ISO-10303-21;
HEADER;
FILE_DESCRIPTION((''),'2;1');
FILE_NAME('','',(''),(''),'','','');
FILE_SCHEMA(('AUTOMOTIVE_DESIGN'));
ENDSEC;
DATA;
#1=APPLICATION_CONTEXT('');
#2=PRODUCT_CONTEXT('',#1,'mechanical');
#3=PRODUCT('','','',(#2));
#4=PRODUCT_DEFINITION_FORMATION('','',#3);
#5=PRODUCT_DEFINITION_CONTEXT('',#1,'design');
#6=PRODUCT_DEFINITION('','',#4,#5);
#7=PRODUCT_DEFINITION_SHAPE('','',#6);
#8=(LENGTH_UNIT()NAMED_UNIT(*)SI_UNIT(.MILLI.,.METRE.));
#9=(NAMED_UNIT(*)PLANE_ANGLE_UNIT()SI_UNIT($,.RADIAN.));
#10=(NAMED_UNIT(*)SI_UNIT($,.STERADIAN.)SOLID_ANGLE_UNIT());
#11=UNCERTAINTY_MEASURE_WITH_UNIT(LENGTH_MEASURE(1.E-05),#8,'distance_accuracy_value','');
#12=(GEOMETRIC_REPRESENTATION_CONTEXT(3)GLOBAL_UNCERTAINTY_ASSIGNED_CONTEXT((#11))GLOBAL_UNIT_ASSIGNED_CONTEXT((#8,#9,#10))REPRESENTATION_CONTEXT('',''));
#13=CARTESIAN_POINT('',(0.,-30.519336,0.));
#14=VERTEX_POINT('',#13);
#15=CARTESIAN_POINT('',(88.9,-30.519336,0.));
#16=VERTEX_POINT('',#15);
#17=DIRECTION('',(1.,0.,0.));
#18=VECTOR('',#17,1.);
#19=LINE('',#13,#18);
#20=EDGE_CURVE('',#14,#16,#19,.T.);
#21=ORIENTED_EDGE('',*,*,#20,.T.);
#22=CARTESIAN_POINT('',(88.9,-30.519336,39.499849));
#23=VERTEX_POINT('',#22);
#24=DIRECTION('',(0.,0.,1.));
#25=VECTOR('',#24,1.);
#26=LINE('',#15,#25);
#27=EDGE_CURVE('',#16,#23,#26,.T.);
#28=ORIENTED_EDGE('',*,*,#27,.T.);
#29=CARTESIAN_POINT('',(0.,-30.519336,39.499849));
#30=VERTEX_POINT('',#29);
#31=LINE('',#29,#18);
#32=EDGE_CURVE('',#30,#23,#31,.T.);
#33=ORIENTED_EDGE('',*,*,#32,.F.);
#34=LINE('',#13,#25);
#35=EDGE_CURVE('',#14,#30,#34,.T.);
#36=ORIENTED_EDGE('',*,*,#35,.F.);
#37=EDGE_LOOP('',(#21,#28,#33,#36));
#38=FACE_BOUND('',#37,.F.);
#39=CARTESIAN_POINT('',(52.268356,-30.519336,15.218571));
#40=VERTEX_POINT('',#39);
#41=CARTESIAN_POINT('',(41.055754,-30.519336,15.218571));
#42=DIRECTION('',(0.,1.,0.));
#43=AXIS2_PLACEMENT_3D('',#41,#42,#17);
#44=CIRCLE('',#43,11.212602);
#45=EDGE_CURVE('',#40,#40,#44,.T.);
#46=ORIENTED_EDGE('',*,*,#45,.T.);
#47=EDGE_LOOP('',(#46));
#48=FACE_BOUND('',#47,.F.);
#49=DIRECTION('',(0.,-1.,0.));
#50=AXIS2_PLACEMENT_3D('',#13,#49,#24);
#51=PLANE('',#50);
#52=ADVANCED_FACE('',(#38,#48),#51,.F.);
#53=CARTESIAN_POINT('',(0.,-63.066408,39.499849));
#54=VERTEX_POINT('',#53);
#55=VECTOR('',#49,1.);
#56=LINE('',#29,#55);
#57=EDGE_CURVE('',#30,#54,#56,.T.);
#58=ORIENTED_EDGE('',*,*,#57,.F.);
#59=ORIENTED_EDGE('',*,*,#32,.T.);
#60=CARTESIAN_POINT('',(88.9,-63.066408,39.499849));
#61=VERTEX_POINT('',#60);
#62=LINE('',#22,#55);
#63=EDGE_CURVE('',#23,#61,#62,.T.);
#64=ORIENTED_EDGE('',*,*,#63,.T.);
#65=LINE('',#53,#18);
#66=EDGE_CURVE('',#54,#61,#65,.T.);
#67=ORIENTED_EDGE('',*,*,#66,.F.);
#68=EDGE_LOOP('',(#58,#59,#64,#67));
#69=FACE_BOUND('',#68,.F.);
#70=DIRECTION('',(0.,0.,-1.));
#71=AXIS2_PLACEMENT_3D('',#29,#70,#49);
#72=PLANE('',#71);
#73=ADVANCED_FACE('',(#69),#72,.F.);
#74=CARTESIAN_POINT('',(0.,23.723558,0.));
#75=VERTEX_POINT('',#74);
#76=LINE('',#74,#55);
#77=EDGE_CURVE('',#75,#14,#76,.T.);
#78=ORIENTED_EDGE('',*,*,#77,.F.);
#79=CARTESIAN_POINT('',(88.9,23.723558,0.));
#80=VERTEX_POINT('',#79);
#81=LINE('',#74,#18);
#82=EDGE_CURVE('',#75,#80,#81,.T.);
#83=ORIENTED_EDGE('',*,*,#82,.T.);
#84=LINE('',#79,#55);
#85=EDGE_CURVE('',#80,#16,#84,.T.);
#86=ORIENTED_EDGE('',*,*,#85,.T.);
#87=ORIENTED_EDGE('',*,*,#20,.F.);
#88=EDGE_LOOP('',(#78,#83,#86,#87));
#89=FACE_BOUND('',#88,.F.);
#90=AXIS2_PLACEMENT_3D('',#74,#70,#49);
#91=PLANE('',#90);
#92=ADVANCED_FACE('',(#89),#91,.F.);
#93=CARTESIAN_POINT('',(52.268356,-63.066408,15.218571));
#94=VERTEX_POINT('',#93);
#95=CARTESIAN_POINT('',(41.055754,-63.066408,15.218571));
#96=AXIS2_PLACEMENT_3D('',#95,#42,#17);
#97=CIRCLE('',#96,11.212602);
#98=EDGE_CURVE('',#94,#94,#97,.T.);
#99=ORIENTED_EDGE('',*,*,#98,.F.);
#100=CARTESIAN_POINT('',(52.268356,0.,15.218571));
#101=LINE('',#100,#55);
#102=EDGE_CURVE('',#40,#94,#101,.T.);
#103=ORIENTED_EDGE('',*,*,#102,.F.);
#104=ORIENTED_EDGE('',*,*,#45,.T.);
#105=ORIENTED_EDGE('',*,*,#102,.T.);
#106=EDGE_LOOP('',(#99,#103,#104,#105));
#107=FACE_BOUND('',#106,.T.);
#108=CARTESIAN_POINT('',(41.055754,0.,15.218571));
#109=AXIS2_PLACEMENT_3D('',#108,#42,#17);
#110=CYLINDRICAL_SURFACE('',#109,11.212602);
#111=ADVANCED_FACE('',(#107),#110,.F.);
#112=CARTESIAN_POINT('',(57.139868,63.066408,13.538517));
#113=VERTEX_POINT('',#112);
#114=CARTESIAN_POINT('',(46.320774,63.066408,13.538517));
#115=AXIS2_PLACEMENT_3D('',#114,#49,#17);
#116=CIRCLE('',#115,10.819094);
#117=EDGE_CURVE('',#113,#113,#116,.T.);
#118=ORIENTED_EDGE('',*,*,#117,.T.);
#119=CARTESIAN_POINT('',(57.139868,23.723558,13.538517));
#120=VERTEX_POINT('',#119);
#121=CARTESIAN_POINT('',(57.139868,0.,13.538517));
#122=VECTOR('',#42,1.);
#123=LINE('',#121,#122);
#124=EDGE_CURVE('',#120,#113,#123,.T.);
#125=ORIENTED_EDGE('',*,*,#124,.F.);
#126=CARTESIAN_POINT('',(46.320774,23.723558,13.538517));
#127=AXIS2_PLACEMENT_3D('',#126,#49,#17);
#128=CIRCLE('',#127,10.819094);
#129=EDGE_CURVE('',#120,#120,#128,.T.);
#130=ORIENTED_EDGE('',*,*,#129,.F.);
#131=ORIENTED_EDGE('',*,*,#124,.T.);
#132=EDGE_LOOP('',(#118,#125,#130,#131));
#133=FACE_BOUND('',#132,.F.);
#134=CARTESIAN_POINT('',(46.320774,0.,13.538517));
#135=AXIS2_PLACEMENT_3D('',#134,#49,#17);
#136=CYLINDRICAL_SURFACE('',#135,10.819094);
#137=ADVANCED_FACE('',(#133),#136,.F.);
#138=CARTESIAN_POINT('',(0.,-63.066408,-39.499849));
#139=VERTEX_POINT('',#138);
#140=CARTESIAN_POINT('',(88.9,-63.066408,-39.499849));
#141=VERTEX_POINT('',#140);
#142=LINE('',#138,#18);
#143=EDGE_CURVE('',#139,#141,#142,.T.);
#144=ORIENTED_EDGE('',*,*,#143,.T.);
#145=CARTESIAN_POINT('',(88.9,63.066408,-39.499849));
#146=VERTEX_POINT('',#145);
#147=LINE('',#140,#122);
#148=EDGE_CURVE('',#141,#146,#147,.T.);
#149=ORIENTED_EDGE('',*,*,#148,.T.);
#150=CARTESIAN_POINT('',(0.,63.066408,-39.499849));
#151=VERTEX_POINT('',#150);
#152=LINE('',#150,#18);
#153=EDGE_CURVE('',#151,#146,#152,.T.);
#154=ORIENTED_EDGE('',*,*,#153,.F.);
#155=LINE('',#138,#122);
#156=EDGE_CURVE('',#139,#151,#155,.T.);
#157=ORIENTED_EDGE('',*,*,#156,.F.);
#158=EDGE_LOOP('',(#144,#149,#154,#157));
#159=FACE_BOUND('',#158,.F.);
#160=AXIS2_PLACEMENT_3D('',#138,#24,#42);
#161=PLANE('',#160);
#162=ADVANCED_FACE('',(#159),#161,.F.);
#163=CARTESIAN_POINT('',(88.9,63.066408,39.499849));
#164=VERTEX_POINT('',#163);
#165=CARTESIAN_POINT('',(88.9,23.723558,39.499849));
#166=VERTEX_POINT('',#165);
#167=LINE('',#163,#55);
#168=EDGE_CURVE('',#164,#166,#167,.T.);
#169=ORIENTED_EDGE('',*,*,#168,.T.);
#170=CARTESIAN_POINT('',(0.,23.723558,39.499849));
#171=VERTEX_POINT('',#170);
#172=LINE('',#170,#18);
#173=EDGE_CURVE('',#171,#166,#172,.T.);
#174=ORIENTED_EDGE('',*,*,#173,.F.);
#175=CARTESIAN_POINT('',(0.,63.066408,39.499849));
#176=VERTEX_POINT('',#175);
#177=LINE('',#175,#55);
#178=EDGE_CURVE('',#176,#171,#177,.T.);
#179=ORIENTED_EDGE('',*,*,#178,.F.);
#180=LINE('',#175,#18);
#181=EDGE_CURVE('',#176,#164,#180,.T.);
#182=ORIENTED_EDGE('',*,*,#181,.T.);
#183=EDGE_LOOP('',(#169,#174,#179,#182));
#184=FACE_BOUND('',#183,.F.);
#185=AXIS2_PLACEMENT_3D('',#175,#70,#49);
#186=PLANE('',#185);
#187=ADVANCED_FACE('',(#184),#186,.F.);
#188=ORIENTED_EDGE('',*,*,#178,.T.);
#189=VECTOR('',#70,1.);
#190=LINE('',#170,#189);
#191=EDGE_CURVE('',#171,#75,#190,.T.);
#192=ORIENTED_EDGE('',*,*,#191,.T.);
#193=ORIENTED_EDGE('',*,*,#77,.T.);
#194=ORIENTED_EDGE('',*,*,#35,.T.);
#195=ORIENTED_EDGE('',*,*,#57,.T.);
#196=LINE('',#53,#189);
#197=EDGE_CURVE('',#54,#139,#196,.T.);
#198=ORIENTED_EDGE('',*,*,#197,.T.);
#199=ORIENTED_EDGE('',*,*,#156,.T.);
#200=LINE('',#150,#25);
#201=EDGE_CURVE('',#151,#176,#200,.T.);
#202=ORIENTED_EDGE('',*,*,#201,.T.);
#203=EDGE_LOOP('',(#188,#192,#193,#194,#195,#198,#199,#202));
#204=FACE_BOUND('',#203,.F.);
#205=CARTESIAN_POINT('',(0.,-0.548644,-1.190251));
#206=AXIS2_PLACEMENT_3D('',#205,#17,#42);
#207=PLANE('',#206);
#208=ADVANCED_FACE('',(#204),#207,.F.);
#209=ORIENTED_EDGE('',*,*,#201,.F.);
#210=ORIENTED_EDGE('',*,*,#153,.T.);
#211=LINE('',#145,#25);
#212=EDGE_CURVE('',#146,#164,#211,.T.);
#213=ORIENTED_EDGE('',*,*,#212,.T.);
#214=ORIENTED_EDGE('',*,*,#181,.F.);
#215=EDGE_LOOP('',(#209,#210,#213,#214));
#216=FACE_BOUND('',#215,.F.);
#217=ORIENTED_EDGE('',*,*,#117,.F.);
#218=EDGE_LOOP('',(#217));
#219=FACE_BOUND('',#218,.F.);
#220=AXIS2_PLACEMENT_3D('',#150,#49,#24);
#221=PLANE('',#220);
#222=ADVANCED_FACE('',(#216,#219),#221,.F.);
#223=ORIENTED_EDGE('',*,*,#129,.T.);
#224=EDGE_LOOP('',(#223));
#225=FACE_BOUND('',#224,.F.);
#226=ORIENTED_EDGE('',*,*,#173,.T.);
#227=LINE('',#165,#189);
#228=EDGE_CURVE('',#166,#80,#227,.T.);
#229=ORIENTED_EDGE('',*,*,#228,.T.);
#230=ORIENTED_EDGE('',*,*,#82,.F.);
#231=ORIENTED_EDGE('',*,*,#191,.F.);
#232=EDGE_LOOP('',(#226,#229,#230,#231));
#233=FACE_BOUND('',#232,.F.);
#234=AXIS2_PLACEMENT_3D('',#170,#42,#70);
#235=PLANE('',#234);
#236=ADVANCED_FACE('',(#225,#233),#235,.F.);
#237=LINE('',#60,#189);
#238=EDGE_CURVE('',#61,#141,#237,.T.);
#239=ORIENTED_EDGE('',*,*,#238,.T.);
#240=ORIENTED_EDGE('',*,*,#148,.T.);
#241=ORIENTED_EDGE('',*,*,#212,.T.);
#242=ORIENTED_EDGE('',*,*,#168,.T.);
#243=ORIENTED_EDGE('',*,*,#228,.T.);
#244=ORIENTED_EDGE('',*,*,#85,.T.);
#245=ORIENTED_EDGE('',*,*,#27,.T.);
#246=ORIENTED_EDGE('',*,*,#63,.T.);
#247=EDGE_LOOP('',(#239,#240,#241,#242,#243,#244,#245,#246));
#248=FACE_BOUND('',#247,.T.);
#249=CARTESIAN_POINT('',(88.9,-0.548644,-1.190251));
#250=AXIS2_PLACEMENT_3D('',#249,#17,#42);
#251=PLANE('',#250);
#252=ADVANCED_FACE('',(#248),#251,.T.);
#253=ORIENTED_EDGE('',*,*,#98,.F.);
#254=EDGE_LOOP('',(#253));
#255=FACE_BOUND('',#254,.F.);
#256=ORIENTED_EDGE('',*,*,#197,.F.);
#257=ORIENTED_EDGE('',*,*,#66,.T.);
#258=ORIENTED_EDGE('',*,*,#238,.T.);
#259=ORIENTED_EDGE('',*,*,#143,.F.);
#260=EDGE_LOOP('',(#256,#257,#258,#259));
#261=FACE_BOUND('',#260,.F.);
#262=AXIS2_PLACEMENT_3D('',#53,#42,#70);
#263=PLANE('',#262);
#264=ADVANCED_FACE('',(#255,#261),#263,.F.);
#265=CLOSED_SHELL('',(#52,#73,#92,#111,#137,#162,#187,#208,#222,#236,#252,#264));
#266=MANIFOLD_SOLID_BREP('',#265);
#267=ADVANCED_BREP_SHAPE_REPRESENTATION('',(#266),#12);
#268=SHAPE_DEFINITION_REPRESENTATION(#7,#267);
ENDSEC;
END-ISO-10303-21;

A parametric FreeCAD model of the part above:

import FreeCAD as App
import Part
import Sketcher
Q = App.Units.Quantity

doc = App.newDocument("Part")
body = doc.addObject("PartDesign::Body", "Body")

# Sketch on YZ plane
sketch1 = body.newObject("Sketcher::SketchObject", "Sketch")
sketch1.AttachmentSupport = (doc.getObject("YZ_Plane"), [""])
sketch1.MapMode = "FlatFace"
sketch1.addGeometry(Part.LineSegment(App.Vector(63.066408, -39.499849, 0), App.Vector(63.066408, 39.499849, 0)), False)
sketch1.addGeometry(Part.LineSegment(App.Vector(63.066408, 39.499849, 0), App.Vector(23.723558, 39.499849, 0)), False)
sketch1.addGeometry(Part.LineSegment(App.Vector(23.723558, 39.499849, 0), App.Vector(23.723558, 0, 0)), False)
sketch1.addGeometry(Part.LineSegment(App.Vector(23.723558, 0, 0), App.Vector(-30.519336, 0, 0)), False)
sketch1.addGeometry(Part.LineSegment(App.Vector(-30.519336, 0, 0), App.Vector(-30.519336, 39.499849, 0)), False)
sketch1.addGeometry(Part.LineSegment(App.Vector(-30.519336, 39.499849, 0), App.Vector(-63.066408, 39.499849, 0)), False)
sketch1.addGeometry(Part.LineSegment(App.Vector(-63.066408, 39.499849, 0), App.Vector(-63.066408, -39.499849, 0)), False)
sketch1.addGeometry(Part.LineSegment(App.Vector(-63.066408, -39.499849, 0), App.Vector(63.066408, -39.499849, 0)), False)
sketch1.addConstraint(Sketcher.Constraint("Coincident", 0, 2, 1, 1))
sketch1.addConstraint(Sketcher.Constraint("Coincident", 1, 2, 2, 1))
sketch1.addConstraint(Sketcher.Constraint("Coincident", 2, 2, 3, 1))
sketch1.addConstraint(Sketcher.Constraint("Coincident", 3, 2, 4, 1))
sketch1.addConstraint(Sketcher.Constraint("Coincident", 4, 2, 5, 1))
sketch1.addConstraint(Sketcher.Constraint("Coincident", 5, 2, 6, 1))
sketch1.addConstraint(Sketcher.Constraint("Coincident", 6, 2, 7, 1))
sketch1.addConstraint(Sketcher.Constraint("Coincident", 7, 2, 0, 1))
sketch1.addConstraint(Sketcher.Constraint("Vertical", 0))
sketch1.addConstraint(Sketcher.Constraint("Horizontal", 1))
sketch1.addConstraint(Sketcher.Constraint("Vertical", 2))
sketch1.addConstraint(Sketcher.Constraint("Horizontal", 3))
sketch1.addConstraint(Sketcher.Constraint("Vertical", 4))
sketch1.addConstraint(Sketcher.Constraint("Horizontal", 5))
sketch1.addConstraint(Sketcher.Constraint("Vertical", 6))
sketch1.addConstraint(Sketcher.Constraint("Horizontal", 7))
sketch1.addConstraint(Sketcher.Constraint("Symmetric", 0, 2, 6, 2, -1, 1))
sketch1.addConstraint(Sketcher.Constraint("PointOnObject", 2, 2, -1))
sketch1.addConstraint(Sketcher.Constraint("Horizontal", 1, 2, 4, 2))
sketch1.addConstraint(Sketcher.Constraint("DistanceX", 1, 2, 1, 1, 39.34285))
sketch1.addConstraint(Sketcher.Constraint("DistanceY", 2, 2, 2, 1, 39.499849))
sketch1.addConstraint(Sketcher.Constraint("DistanceX", 3, 2, 3, 1, 54.242894))
sketch1.addConstraint(Sketcher.Constraint("DistanceX", 5, 2, 5, 1, 32.547072))
pad1 = body.newObject("PartDesign::Pad", "Pad")
pad1.Profile = sketch1
pad1.Length = Q("3.5 in")

# Sketch on XZ plane
sketch2 = body.newObject("Sketcher::SketchObject", "Sketch001")
sketch2.AttachmentSupport = (doc.getObject("XZ_Plane"), [""])
sketch2.MapMode = "FlatFace"
sketch2.addGeometry(Part.Circle(App.Vector(41.055754, 15.218571, 0), App.Vector(0, 0, 1), 11.212602), False)
sketch2.addConstraint(Sketcher.Constraint("Diameter", 0, 22.425204))
sketch2.addConstraint(Sketcher.Constraint("DistanceY", -1, 1, 0, 3, 15.218571))
sketch2.addConstraint(Sketcher.Constraint("DistanceX", -1, 1, 0, 3, 41.055754))
pocket1 = body.newObject("PartDesign::Pocket", "Pocket")
pocket1.Profile = sketch2
pocket1.Length = Q("3 in")
pocket1.Reversed = True

# Sketch on XZ plane
sketch3 = body.newObject("Sketcher::SketchObject", "Sketch002")
sketch3.AttachmentSupport = (doc.getObject("XZ_Plane"), [""])
sketch3.MapMode = "FlatFace"
sketch3.addGeometry(Part.Circle(App.Vector(46.320774, 13.538517, 0), App.Vector(0, 0, 1), 10.819094), False)
sketch3.addConstraint(Sketcher.Constraint("Diameter", 0, 21.638188))
sketch3.addConstraint(Sketcher.Constraint("DistanceX", -1, 1, 0, 3, 46.320774))
sketch3.addConstraint(Sketcher.Constraint("DistanceY", -1, 1, 0, 3, 13.538517))
pocket2 = body.newObject("PartDesign::Pocket", "Pocket001")
pocket2.Profile = sketch3
pocket2.Length = Q("3 in")

doc.recompute()
